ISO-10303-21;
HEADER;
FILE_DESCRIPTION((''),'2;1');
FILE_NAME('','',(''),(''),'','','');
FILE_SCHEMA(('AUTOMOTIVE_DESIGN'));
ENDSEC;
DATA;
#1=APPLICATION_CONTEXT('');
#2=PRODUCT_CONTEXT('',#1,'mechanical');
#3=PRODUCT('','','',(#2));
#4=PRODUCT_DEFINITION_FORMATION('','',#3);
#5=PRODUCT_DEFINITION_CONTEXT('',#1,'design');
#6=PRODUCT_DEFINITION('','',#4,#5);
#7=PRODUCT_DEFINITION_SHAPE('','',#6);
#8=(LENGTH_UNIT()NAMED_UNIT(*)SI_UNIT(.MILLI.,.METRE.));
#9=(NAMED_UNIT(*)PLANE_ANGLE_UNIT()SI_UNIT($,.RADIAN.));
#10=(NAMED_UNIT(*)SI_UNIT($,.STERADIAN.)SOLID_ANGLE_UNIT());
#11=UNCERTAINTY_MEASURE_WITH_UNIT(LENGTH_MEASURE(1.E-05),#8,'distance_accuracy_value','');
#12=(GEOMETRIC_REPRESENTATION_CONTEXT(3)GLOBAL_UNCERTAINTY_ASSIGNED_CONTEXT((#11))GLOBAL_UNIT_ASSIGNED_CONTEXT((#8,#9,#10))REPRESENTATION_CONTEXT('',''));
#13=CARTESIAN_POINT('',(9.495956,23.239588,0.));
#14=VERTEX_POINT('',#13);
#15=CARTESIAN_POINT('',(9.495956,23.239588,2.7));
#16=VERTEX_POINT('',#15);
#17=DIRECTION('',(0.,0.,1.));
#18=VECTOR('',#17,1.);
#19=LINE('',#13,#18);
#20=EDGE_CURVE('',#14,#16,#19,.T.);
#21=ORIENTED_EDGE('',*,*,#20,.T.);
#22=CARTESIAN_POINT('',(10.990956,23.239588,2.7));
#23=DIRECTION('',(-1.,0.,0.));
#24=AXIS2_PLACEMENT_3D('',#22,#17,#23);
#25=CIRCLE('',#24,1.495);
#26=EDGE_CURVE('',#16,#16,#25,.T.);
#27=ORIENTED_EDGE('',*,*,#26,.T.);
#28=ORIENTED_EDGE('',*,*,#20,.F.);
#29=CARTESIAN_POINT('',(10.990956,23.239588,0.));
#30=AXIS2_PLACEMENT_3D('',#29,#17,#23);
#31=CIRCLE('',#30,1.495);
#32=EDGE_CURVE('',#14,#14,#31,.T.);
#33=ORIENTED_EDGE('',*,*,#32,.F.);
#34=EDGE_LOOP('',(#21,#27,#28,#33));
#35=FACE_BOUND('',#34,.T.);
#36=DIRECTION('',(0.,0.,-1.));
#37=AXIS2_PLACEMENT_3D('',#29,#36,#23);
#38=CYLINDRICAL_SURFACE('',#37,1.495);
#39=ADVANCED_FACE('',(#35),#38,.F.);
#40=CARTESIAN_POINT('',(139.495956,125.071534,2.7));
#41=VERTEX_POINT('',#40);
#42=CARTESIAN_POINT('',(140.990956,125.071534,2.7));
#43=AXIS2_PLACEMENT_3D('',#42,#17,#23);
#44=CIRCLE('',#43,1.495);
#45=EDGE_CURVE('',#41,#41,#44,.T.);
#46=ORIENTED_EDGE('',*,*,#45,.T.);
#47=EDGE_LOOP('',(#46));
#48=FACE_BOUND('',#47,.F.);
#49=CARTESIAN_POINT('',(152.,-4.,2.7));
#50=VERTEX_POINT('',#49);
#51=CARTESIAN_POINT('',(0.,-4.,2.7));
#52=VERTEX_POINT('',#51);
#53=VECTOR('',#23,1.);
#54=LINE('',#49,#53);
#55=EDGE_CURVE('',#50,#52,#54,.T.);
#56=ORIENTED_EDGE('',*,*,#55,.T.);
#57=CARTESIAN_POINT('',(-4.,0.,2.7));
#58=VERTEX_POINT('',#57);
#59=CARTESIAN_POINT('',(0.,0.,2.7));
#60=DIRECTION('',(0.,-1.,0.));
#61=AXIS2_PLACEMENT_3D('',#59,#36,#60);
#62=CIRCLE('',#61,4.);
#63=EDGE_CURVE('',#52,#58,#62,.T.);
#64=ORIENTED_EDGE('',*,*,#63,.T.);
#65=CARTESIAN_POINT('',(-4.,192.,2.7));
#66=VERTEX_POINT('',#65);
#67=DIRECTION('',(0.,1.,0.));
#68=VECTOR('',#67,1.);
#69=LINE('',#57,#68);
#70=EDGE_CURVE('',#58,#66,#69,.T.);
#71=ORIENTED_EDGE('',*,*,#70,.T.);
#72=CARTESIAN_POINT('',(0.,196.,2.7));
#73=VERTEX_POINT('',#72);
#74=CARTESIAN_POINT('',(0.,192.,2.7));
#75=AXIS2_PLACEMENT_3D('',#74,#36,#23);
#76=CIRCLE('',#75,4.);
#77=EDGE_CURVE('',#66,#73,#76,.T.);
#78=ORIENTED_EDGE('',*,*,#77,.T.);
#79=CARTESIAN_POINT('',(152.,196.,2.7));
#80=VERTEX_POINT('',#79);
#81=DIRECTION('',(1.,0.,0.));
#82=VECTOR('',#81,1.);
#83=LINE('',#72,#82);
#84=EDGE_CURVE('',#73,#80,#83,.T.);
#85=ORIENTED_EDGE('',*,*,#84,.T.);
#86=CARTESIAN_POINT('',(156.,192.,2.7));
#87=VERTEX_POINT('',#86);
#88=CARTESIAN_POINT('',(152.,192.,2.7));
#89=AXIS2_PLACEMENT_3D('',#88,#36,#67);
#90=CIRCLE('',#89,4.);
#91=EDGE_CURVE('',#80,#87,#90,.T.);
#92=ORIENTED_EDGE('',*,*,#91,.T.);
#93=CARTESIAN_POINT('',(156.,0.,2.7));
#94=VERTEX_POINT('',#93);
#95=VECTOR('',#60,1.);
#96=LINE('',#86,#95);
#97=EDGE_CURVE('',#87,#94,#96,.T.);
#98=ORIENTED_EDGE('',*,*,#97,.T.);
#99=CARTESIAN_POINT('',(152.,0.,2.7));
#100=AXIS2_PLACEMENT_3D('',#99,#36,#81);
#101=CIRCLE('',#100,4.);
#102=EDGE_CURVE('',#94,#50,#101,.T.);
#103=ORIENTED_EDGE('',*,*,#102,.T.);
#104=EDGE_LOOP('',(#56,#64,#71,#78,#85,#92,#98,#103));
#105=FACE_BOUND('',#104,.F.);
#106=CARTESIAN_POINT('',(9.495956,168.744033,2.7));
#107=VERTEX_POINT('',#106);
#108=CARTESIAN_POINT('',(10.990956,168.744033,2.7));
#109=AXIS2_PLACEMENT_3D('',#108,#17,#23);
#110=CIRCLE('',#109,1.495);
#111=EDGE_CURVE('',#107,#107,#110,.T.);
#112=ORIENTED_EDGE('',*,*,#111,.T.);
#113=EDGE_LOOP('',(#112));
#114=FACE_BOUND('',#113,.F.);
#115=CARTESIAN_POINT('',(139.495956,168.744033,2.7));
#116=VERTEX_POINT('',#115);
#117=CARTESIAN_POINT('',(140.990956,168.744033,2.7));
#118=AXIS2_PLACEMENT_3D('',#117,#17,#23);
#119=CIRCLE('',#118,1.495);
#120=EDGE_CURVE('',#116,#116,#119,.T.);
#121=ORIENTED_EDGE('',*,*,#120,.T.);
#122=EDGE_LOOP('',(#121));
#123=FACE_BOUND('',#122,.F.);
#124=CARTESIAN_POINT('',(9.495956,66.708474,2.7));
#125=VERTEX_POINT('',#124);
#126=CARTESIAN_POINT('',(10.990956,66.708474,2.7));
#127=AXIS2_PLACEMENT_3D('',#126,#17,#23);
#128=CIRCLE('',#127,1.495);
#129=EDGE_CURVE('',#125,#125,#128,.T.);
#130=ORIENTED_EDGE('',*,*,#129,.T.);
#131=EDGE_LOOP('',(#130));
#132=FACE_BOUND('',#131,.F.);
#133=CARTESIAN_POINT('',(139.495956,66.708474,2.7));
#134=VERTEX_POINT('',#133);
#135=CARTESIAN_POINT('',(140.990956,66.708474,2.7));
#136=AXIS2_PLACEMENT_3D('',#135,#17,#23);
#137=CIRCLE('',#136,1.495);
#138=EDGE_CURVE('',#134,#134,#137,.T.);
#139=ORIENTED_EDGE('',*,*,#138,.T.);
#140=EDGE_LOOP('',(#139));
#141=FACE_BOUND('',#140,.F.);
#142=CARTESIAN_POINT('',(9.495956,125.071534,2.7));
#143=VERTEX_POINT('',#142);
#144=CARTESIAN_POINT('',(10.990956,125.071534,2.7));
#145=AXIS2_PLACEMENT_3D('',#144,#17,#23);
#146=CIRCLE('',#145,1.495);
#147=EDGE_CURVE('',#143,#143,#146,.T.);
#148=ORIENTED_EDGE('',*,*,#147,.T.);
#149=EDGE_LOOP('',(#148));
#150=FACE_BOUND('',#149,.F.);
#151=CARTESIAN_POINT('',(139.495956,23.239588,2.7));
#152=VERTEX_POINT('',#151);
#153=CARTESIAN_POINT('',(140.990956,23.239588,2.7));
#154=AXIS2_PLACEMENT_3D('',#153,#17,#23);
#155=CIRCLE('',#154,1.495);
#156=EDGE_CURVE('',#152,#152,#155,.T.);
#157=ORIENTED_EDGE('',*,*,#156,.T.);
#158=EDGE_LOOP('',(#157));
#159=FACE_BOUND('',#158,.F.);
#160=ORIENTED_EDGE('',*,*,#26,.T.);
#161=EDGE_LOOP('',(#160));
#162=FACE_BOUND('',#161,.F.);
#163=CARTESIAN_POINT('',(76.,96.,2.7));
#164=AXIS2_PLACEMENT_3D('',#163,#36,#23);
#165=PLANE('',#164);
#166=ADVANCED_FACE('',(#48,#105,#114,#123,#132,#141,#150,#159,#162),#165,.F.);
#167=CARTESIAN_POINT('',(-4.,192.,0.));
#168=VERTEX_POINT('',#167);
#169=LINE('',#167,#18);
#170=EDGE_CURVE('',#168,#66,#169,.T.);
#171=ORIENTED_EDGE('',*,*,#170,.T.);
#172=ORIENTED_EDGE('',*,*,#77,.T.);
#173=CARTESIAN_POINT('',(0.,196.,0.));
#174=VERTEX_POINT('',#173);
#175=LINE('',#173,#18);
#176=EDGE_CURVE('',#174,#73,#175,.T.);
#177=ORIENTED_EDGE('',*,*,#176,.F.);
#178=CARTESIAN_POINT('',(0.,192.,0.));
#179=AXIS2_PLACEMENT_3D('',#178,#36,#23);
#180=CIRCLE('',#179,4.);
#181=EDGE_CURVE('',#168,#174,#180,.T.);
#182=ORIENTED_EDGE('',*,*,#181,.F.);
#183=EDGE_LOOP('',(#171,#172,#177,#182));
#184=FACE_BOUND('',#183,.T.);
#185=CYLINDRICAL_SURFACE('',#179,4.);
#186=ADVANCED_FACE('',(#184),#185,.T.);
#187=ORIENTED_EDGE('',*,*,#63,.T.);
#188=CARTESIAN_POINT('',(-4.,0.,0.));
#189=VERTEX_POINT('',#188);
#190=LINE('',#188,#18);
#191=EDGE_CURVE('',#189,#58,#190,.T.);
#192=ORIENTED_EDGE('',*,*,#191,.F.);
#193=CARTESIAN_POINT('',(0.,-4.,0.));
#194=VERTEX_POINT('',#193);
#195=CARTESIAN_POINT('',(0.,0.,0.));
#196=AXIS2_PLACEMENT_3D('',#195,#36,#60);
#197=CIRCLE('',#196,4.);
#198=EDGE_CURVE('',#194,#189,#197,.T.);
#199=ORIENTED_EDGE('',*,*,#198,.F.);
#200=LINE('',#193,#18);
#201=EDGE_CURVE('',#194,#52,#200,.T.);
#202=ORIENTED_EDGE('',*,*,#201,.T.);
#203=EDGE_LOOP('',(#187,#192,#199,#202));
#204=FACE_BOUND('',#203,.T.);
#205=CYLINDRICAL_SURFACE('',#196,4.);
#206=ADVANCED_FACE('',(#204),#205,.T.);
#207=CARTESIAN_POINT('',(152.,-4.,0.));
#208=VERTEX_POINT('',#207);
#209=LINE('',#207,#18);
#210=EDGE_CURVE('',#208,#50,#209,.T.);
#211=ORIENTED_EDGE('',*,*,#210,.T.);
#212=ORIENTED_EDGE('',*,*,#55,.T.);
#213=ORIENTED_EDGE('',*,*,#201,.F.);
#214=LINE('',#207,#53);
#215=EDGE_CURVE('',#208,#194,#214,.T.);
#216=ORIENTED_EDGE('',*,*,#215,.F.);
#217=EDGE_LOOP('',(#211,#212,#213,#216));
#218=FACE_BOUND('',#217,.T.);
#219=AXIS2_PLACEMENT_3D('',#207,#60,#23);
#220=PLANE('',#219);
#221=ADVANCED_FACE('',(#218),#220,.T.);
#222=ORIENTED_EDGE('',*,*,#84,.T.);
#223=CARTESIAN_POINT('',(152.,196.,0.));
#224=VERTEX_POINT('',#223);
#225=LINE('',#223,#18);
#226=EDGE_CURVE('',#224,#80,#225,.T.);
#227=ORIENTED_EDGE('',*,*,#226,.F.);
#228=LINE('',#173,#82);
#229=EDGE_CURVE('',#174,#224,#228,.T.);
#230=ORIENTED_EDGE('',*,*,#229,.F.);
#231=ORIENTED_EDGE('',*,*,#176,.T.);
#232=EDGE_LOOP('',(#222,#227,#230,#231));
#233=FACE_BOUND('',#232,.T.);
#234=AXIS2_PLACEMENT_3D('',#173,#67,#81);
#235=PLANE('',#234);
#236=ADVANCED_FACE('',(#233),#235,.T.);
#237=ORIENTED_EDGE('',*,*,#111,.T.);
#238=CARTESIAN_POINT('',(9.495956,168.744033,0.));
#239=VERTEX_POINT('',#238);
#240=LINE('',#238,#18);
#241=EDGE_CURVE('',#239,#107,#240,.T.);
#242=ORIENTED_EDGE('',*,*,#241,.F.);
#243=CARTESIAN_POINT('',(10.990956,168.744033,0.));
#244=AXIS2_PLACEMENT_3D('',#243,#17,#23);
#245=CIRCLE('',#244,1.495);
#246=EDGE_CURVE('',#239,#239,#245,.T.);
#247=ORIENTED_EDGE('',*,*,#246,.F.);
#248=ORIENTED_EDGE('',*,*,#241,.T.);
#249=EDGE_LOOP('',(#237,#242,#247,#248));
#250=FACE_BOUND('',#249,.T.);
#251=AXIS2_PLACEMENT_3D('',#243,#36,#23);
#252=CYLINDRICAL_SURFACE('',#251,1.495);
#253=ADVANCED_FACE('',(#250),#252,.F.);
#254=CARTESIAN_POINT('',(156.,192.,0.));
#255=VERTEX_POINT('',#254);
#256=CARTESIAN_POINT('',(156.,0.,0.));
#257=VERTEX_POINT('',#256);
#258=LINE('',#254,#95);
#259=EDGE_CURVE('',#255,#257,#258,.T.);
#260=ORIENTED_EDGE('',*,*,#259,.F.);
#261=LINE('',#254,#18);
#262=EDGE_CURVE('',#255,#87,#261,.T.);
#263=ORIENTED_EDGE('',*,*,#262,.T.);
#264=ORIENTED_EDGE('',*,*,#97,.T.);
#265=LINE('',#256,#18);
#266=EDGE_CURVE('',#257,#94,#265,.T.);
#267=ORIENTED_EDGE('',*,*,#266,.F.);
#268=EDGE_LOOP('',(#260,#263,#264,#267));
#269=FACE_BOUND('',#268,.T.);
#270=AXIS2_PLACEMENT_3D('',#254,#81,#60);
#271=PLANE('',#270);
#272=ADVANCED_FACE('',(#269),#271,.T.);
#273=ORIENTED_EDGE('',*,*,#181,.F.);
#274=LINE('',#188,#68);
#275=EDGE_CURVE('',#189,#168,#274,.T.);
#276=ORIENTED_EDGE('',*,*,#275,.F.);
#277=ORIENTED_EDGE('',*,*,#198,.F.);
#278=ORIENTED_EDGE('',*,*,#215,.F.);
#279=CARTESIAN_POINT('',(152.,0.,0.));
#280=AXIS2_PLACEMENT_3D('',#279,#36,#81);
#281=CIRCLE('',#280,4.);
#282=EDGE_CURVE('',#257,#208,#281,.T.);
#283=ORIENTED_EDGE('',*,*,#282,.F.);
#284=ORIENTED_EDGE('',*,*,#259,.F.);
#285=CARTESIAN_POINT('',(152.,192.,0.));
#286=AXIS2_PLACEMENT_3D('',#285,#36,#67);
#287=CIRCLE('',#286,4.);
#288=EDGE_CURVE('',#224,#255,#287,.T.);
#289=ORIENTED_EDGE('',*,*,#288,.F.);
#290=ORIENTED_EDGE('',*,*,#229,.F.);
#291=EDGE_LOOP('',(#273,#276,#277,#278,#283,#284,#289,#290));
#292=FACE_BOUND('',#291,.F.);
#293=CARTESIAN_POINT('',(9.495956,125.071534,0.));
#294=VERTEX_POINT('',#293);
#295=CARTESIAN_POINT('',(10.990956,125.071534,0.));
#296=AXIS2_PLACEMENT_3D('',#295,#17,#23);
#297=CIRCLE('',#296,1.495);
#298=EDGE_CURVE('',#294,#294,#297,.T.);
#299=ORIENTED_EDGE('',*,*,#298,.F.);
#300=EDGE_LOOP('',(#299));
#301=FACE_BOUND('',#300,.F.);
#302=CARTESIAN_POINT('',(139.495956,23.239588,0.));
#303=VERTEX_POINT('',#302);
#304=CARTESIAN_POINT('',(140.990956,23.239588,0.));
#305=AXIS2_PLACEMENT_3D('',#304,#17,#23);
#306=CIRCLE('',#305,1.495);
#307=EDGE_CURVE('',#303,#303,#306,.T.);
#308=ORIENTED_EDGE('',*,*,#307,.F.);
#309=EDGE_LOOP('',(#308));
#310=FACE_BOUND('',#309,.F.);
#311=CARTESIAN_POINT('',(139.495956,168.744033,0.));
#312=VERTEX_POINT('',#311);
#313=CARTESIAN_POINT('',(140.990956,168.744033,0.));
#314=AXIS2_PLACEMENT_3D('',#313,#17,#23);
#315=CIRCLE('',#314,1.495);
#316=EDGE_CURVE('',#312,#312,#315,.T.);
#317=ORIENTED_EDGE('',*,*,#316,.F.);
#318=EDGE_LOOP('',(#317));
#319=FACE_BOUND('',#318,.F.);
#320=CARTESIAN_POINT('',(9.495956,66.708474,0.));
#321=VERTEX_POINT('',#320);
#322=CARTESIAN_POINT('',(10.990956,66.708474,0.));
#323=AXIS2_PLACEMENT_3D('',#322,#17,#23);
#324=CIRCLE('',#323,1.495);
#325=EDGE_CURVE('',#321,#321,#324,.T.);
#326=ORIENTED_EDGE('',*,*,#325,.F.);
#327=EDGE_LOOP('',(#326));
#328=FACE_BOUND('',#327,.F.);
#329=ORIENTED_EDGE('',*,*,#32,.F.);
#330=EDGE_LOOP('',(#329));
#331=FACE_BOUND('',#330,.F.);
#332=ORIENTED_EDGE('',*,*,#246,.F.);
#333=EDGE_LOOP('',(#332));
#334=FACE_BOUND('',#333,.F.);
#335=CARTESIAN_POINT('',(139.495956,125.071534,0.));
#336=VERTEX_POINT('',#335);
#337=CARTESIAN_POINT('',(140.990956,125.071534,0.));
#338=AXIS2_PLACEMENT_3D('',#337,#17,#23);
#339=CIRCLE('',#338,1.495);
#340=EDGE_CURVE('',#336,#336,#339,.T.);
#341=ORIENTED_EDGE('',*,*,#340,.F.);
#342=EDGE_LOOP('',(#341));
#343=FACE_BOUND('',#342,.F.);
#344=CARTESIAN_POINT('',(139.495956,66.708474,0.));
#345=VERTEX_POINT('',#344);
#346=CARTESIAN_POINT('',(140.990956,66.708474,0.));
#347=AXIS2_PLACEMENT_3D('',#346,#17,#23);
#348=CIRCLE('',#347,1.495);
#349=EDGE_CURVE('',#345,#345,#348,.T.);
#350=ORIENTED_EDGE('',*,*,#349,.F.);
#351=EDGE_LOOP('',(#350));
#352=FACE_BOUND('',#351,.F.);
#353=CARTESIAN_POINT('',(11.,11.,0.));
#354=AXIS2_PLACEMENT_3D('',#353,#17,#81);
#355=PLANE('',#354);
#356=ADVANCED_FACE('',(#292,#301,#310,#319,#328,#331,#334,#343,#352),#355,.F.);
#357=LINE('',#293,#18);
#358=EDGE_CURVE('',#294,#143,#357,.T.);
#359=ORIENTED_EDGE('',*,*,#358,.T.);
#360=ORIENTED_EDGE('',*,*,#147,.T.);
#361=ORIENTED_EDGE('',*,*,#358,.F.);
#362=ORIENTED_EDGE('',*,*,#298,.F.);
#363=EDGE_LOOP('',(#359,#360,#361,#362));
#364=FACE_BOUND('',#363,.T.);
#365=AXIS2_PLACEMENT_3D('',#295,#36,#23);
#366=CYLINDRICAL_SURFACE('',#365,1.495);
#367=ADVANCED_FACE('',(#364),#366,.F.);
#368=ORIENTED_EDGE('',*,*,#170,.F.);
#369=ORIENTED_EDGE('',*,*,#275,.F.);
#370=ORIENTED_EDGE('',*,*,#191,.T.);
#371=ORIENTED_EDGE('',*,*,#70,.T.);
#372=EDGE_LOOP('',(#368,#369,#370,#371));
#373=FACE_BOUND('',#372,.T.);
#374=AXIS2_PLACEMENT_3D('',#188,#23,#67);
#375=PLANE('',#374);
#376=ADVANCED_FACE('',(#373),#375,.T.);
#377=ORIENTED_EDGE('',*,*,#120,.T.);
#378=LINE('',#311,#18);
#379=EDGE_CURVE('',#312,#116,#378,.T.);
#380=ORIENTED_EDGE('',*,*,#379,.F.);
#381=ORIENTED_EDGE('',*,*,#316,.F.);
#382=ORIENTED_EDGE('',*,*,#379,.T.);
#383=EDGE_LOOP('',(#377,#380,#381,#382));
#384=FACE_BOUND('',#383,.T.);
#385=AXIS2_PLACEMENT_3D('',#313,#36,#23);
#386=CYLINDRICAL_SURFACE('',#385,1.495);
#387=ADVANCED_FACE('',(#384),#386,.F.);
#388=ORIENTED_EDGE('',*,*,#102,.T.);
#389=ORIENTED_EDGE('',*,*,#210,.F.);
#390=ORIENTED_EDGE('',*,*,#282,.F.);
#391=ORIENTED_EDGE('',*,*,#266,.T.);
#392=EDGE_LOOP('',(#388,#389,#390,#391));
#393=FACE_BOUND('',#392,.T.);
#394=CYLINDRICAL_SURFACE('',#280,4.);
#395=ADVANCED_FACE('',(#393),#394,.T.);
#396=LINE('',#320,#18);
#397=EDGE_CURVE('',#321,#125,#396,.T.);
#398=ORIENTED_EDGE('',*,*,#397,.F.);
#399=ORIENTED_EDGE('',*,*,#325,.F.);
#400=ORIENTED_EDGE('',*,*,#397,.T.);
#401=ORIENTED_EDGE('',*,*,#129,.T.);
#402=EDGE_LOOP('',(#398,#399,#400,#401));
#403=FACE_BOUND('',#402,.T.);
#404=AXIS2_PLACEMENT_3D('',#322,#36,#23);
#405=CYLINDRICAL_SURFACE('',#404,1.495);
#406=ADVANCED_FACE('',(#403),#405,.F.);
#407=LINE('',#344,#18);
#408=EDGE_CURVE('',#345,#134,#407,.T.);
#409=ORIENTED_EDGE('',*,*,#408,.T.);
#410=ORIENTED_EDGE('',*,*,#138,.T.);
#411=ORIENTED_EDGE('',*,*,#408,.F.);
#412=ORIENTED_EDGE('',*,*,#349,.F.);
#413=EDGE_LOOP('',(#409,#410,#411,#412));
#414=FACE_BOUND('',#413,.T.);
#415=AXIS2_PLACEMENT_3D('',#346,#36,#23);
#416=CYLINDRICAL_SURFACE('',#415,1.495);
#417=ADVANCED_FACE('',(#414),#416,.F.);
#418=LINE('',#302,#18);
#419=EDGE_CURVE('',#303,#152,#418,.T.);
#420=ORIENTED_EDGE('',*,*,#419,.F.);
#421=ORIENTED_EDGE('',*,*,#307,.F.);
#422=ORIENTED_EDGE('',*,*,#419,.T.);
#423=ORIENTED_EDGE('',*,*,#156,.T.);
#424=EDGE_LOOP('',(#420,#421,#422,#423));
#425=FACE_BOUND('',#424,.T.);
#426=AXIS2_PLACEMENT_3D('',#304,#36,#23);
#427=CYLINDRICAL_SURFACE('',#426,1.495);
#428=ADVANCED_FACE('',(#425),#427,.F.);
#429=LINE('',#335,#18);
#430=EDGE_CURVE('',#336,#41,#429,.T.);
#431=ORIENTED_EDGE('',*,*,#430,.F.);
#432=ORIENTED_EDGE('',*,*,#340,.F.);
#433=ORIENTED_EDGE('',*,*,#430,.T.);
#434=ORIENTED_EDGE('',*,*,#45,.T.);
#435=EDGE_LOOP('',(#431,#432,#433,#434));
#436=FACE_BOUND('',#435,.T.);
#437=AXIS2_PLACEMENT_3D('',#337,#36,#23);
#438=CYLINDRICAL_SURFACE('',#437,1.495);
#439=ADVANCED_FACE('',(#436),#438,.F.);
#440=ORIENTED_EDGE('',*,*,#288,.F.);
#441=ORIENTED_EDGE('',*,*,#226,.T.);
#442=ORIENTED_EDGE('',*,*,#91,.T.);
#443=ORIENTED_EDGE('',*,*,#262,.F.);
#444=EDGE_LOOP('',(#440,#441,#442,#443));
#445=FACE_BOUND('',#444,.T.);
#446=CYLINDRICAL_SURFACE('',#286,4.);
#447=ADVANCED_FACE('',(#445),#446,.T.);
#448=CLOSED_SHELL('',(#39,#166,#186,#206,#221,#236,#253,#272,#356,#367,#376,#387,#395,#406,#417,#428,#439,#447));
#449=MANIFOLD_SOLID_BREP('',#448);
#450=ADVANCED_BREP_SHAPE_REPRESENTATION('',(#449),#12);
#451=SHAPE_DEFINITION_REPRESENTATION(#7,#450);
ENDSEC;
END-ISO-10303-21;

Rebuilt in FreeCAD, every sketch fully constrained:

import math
import FreeCAD as App
import Part
import Sketcher

V = App.Vector
Q = App.Units.Quantity

doc = App.newDocument("Part")
body = doc.addObject("PartDesign::Body", "Body")

# Sketch on XY plane
sketch1 = doc.addObject("Sketcher::SketchObject", "Sketch")
body.addObject(sketch1)
sketch1.AttachmentSupport = (doc.XY_Plane, [""])
sketch1.MapMode = "FlatFace"
sketch1.addGeometry(Part.LineSegment(V(152, 196, 0), V(0, 196, 0)), False)
sketch1.addGeometry(Part.ArcOfCircle(Part.Circle(V(0, 192, 0), V(0, 0, 1), 4), math.radians(90), math.radians(180)), False)
sketch1.addGeometry(Part.LineSegment(V(-4, 192, 0), V(-4, 0, 0)), False)
sketch1.addGeometry(Part.ArcOfCircle(Part.Circle(V(0, 0, 0), V(0, 0, 1), 4), math.radians(180), math.radians(270)), False)
sketch1.addGeometry(Part.LineSegment(V(0, -4, 0), V(152, -4, 0)), False)
sketch1.addGeometry(Part.ArcOfCircle(Part.Circle(V(152, 0, 0), V(0, 0, 1), 4), math.radians(-90), math.radians(0)), False)
sketch1.addGeometry(Part.LineSegment(V(156, 0, 0), V(156, 192, 0)), False)
sketch1.addGeometry(Part.ArcOfCircle(Part.Circle(V(152, 192, 0), V(0, 0, 1), 4), math.radians(0), math.radians(90)), False)
sketch1.addGeometry(Part.Circle(V(141, 23.2, 0), V(0, 0, 1), 1.5), False)
sketch1.addGeometry(Part.Circle(V(141, 66.7, 0), V(0, 0, 1), 1.5), False)
sketch1.addGeometry(Part.Circle(V(11, 23.2, 0), V(0, 0, 1), 1.5), False)
sketch1.addGeometry(Part.Circle(V(11, 66.7, 0), V(0, 0, 1), 1.5), False)
sketch1.addGeometry(Part.Circle(V(141, 125.1, 0), V(0, 0, 1), 1.5), False)
sketch1.addGeometry(Part.Circle(V(141, 168.7, 0), V(0, 0, 1), 1.5), False)
sketch1.addGeometry(Part.Circle(V(11, 125.1, 0), V(0, 0, 1), 1.5), False)
sketch1.addGeometry(Part.Circle(V(11, 168.7, 0), V(0, 0, 1), 1.5), False)
sketch1.addConstraint(Sketcher.Constraint("Tangent", 0, 2, 1, 1))
sketch1.addConstraint(Sketcher.Constraint("Tangent", 1, 2, 2, 1))
sketch1.addConstraint(Sketcher.Constraint("Tangent", 2, 2, 3, 1))
sketch1.addConstraint(Sketcher.Constraint("Tangent", 3, 2, 4, 1))
sketch1.addConstraint(Sketcher.Constraint("Tangent", 4, 2, 5, 1))
sketch1.addConstraint(Sketcher.Constraint("Tangent", 5, 2, 6, 1))
sketch1.addConstraint(Sketcher.Constraint("Tangent", 6, 2, 7, 1))
sketch1.addConstraint(Sketcher.Constraint("Tangent", 7, 2, 0, 1))
sketch1.addConstraint(Sketcher.Constraint("Horizontal", 0))
sketch1.addConstraint(Sketcher.Constraint("Vertical", 2))
sketch1.addConstraint(Sketcher.Constraint("Horizontal", 4))
sketch1.addConstraint(Sketcher.Constraint("Vertical", 6))
sketch1.addConstraint(Sketcher.Constraint("Coincident", 3, 3, -1, 1))
sketch1.addConstraint(Sketcher.Constraint("Equal", 1, 3))
sketch1.addConstraint(Sketcher.Constraint("Equal", 3, 5))
sketch1.addConstraint(Sketcher.Constraint("Equal", 5, 7))
sketch1.addConstraint(Sketcher.Constraint("Equal", 8, 9))
sketch1.addConstraint(Sketcher.Constraint("Equal", 9, 10))
sketch1.addConstraint(Sketcher.Constraint("Equal", 10, 11))
sketch1.addConstraint(Sketcher.Constraint("Equal", 11, 12))
sketch1.addConstraint(Sketcher.Constraint("Equal", 12, 13))
sketch1.addConstraint(Sketcher.Constraint("Equal", 13, 14))
sketch1.addConstraint(Sketcher.Constraint("Equal", 14, 15))
sketch1.addConstraint(Sketcher.Constraint("Horizontal", 8, 3, 10, 3))
sketch1.addConstraint(Sketcher.Constraint("Horizontal", 9, 3, 11, 3))
sketch1.addConstraint(Sketcher.Constraint("Horizontal", 12, 3, 14, 3))
sketch1.addConstraint(Sketcher.Constraint("Horizontal", 13, 3, 15, 3))
sketch1.addConstraint(Sketcher.Constraint("Vertical", 8, 3, 9, 3))
sketch1.addConstraint(Sketcher.Constraint("Vertical", 10, 3, 11, 3))
sketch1.addConstraint(Sketcher.Constraint("Vertical", 9, 3, 12, 3))
sketch1.addConstraint(Sketcher.Constraint("Vertical", 12, 3, 13, 3))
sketch1.addConstraint(Sketcher.Constraint("Vertical", 11, 3, 14, 3))
sketch1.addConstraint(Sketcher.Constraint("Vertical", 14, 3, 15, 3))
sketch1.addConstraint(Sketcher.Constraint("Radius", 1, Q("4 mm")))
sketch1.addConstraint(Sketcher.Constraint("Diameter", 8, Q("2.99 mm")))
sketch1.addConstraint(Sketcher.Constraint("DistanceX", 0, 2, 0, 1, Q("152 mm")))
sketch1.addConstraint(Sketcher.Constraint("DistanceY", 2, 2, 2, 1, Q("192 mm")))
sketch1.addConstraint(Sketcher.Constraint("DistanceX", 10, 3, 8, 3, Q("130 mm")))
sketch1.addConstraint(Sketcher.Constraint("DistanceY", 12, 3, 13, 3, Q("43.672499 mm")))
sketch1.addConstraint(Sketcher.Constraint("DistanceY", -1, 1, 8, 3, Q("23.239588 mm")))
sketch1.addConstraint(Sketcher.Constraint("DistanceY", 9, 3, 12, 3, Q("58.36306 mm")))
sketch1.addConstraint(Sketcher.Constraint("DistanceX", -1, 1, 8, 3, Q("140.990956 mm")))
sketch1.addConstraint(Sketcher.Constraint("DistanceY", -1, 1, 9, 3, Q("66.708474 mm")))
pad1 = doc.addObject("PartDesign::Pad", "Pad")
body.addObject(pad1)
pad1.Profile = sketch1
pad1.Length = 2.7

doc.recompute()
